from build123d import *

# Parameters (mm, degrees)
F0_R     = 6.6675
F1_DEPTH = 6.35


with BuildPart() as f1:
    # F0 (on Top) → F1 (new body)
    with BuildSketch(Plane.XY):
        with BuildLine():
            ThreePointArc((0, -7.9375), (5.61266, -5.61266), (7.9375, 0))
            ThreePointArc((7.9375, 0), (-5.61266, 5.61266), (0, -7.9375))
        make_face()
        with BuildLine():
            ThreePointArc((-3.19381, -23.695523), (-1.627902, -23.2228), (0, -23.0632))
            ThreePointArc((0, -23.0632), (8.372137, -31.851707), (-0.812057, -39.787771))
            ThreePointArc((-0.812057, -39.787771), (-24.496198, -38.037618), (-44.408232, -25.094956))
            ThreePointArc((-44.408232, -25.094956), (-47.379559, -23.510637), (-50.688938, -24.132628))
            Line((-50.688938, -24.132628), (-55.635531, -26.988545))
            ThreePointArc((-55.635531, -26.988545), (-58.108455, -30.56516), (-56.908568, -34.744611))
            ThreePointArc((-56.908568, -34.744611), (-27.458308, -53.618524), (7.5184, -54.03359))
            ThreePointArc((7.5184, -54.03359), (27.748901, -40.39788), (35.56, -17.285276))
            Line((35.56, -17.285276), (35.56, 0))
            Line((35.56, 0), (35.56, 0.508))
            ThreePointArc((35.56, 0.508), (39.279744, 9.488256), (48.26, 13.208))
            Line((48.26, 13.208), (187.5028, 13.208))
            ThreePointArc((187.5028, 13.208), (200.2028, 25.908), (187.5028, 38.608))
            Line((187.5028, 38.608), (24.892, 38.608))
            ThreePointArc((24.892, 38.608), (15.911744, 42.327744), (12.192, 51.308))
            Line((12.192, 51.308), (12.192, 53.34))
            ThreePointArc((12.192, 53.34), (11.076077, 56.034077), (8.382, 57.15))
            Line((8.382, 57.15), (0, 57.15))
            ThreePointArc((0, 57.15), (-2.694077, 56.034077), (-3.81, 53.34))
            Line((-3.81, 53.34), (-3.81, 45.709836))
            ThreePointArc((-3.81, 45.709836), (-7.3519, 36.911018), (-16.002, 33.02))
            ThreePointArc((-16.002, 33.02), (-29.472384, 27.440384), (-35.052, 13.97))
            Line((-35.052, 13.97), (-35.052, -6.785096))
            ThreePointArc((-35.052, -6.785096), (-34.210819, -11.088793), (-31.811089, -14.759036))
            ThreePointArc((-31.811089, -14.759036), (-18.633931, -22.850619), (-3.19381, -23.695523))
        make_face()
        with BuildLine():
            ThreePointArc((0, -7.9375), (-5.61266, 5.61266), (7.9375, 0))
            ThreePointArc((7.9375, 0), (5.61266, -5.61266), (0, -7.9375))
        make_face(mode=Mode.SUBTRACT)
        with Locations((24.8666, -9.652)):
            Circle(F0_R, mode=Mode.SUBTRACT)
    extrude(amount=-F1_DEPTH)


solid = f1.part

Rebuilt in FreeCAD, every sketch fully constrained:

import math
import FreeCAD as App
import Part
import Sketcher
Q = App.Units.Quantity

doc = App.newDocument("Part")
body = doc.addObject("PartDesign::Body", "Body")

sketch1 = doc.addObject("Sketcher::SketchObject", "Sketch")
body.addObject(sketch1)
sketch1.AttachmentSupport = (doc.XY_Plane, [""])
sketch1.MapMode = "FlatFace"
sketch1.addGeometry([
    Part.ArcOfCircle(Part.Circle(App.Vector(0, -31.4, 0), App.Vector(0, 0, 1), 8.4), math.radians(90), math.radians(112)),
    Part.ArcOfCircle(Part.Circle(App.Vector(0, -31.4, 0), App.Vector(0, 0, 1), 8.4), math.radians(-96), math.radians(90)),
    Part.ArcOfCircle(Part.Circle(App.Vector(-9.2, 7.2, 0), App.Vector(0, 0, 1), 47.8), math.radians(-137), math.radians(-80)),
    Part.ArcOfCircle(Part.Circle(App.Vector(-48.1, -28.5, 0), App.Vector(0, 0, 1), 5.1), math.radians(43), math.radians(120)),
    Part.LineSegment(App.Vector(-50.7, -24.1, 0), App.Vector(-55.6, -27, 0)),
    Part.ArcOfCircle(Part.Circle(App.Vector(-53.1, -31.4, 0), App.Vector(0, 0, 1), 5.1), math.radians(120), math.radians(221)),
    Part.ArcOfCircle(Part.Circle(App.Vector(-9.2, 7.2, 0), App.Vector(0, 0, 1), 63.5), math.radians(-139), math.radians(-75)),
    Part.ArcOfCircle(Part.Circle(App.Vector(-2.5, -17.3, 0), App.Vector(0, 0, 1), 38.1), math.radians(-75), math.radians(0)),
    Part.LineSegment(App.Vector(35.6, -17.3, 0), App.Vector(35.6, 0.5, 0)),
    Part.ArcOfCircle(Part.Circle(App.Vector(48.3, 0.5, 0), App.Vector(0, 0, 1), 12.7), math.radians(90), math.radians(180)),
    Part.LineSegment(App.Vector(48.3, 13.2, 0), App.Vector(187.5, 13.2, 0)),
    Part.ArcOfCircle(Part.Circle(App.Vector(187.5, 25.9, 0), App.Vector(0, 0, 1), 12.7), math.radians(-90), math.radians(90)),
    Part.LineSegment(App.Vector(187.5, 38.6, 0), App.Vector(24.9, 38.6, 0)),
    Part.ArcOfCircle(Part.Circle(App.Vector(24.9, 51.3, 0), App.Vector(0, 0, 1), 12.7), math.radians(-180), math.radians(-90)),
    Part.LineSegment(App.Vector(12.2, 51.3, 0), App.Vector(12.2, 53.3, 0)),
    Part.ArcOfCircle(Part.Circle(App.Vector(8.4, 53.3, 0), App.Vector(0, 0, 1), 3.8), math.radians(0), math.radians(90)),
    Part.LineSegment(App.Vector(8.4, 57.1, 0), App.Vector(0, 57.1, 0)),
    Part.ArcOfCircle(Part.Circle(App.Vector(0, 53.3, 0), App.Vector(0, 0, 1), 3.8), math.radians(90), math.radians(180)),
    Part.LineSegment(App.Vector(-3.8, 53.3, 0), App.Vector(-3.8, 45.7, 0)),
    Part.ArcOfCircle(Part.Circle(App.Vector(-16.5, 45.7, 0), App.Vector(0, 0, 1), 12.7), math.radians(-88), math.radians(0)),
    Part.ArcOfCircle(Part.Circle(App.Vector(-16, 14, 0), App.Vector(0, 0, 1), 19.1), math.radians(90), math.radians(180)),
    Part.LineSegment(App.Vector(-35.1, 14, 0), App.Vector(-35.1, -6.8, 0)),
    Part.ArcOfCircle(Part.Circle(App.Vector(-23.6, -6.8, 0), App.Vector(0, 0, 1), 11.4), math.radians(-180), math.radians(-136)),
    Part.ArcOfCircle(Part.Circle(App.Vector(-9.2, 7.2, 0), App.Vector(0, 0, 1), 31.5), math.radians(-136), math.radians(-79)),
    Part.Circle(App.Vector(24.9, -9.7, 0), App.Vector(0, 0, 1), 6.7),
    Part.ArcOfCircle(Part.Circle(App.Vector(0, 0, 0), App.Vector(0, 0, 1), 7.9), math.radians(-90), math.radians(0)),
    Part.ArcOfCircle(Part.Circle(App.Vector(0, 0, 0), App.Vector(0, 0, 1), 7.9), math.radians(0), math.radians(270)),
], False)
sketch1.addConstraint([
    Sketcher.Constraint("Tangent", 0, 1, 1, 2),
    Sketcher.Constraint("Coincident", 1, 1, 2, 2),
    Sketcher.Constraint("Tangent", 2, 1, 3, 1),
    Sketcher.Constraint("Tangent", 3, 2, 4, 1),
    Sketcher.Constraint("Tangent", 4, 2, 5, 1),
    Sketcher.Constraint("Tangent", 5, 2, 6, 1),
    Sketcher.Constraint("Tangent", 6, 2, 7, 1),
    Sketcher.Constraint("Tangent", 7, 2, 8, 1),
    Sketcher.Constraint("Tangent", 8, 2, 9, 2),
    Sketcher.Constraint("Tangent", 9, 1, 10, 1),
    Sketcher.Constraint("Tangent", 10, 2, 11, 1),
    Sketcher.Constraint("Tangent", 11, 2, 12, 1),
    Sketcher.Constraint("Tangent", 12, 2, 13, 2),
    Sketcher.Constraint("Tangent", 13, 1, 14, 1),
    Sketcher.Constraint("Tangent", 14, 2, 15, 1),
    Sketcher.Constraint("Tangent", 15, 2, 16, 1),
    Sketcher.Constraint("Tangent", 16, 2, 17, 1),
    Sketcher.Constraint("Tangent", 17, 2, 18, 1),
    Sketcher.Constraint("Tangent", 18, 2, 19, 2),
    Sketcher.Constraint("Coincident", 19, 1, 20, 1),
    Sketcher.Constraint("Tangent", 20, 2, 21, 1),
    Sketcher.Constraint("Tangent", 21, 2, 22, 1),
    Sketcher.Constraint("Tangent", 22, 2, 23, 1),
    Sketcher.Constraint("Coincident", 23, 2, 0, 2),
    Sketcher.Constraint("Tangent", 25, 1, 26, 2),
    Sketcher.Constraint("Coincident", 26, 1, 25, 2),
    Sketcher.Constraint("Vertical", 8),
    Sketcher.Constraint("Horizontal", 10),
    Sketcher.Constraint("Horizontal", 12),
    Sketcher.Constraint("Vertical", 14),
    Sketcher.Constraint("Horizontal", 16),
    Sketcher.Constraint("Vertical", 18),
    Sketcher.Constraint("Vertical", 21),
    Sketcher.Constraint("Coincident", 25, 3, -1, 1),
    Sketcher.Constraint("Coincident", 6, 3, 2, 3),
    Sketcher.Constraint("Coincident", 23, 3, 2, 3),
    Sketcher.Constraint("Equal", 3, 5),
    Sketcher.Constraint("Equal", 9, 11),
    Sketcher.Constraint("Equal", 11, 13),
    Sketcher.Constraint("Equal", 15, 17),
    Sketcher.Constraint("Equal", 13, 19),
    Sketcher.Constraint("PointOnObject", 1, 3, -2),
    Sketcher.Constraint("PointOnObject", 17, 3, -2),
    Sketcher.Constraint("PointOnObject", 0, 1, -2),
    Sketcher.Constraint("PointOnObject", 25, 1, -2),
    Sketcher.Constraint("PointOnObject", 26, 1, -1),
    Sketcher.Constraint("Vertical", 20, 3, 19, 1),
    Sketcher.Constraint("Radius", 3, Q("0.2 in")),
    Sketcher.Constraint("Radius", 6, Q("2.4999999 in")),
    Sketcher.Constraint("Radius", 7, Q("1.5 in")),
    Sketcher.Constraint("Radius", 9, Q("0.5 in")),
    Sketcher.Constraint("Radius", 1, Q("0.33 in")),
    Sketcher.Constraint("Radius", 2, Q("1.8800001 in")),
    Sketcher.Constraint("Radius", 15, Q("0.15 in")),
    Sketcher.Constraint("Radius", 20, Q("0.75 in")),
    Sketcher.Constraint("Radius", 22, Q("0.4500001 in")),
    Sketcher.Constraint("Radius", 23, Q("1.2400001 in")),
    Sketcher.Constraint("Diameter", 24, Q("0.525 in")),
    Sketcher.Constraint("Angle", 4, Q("-149.999998 deg")),
    Sketcher.Constraint("Radius", 25, Q("0.3125 in")),
    Sketcher.Constraint("DistanceX", 16, 2, 16, 1, Q("0.33 in")),
    Sketcher.Constraint("DistanceY", 14, 1, 14, 2, Q("0.08 in")),
    Sketcher.Constraint("DistanceX", 7, 3, -1, 1, Q("0.1 in")),
    Sketcher.Constraint("DistanceY", -1, 1, 15, 3, Q("2.1 in")),
    Sketcher.Constraint("DistanceY", -1, 1, 19, 1, Q("1.3 in")),
    Sketcher.Constraint("DistanceY", 24, 3, 9, 3, Q("0.4 in")),
    Sketcher.Constraint("DistanceX", 10, 1, 10, 2, Q("5.482 in")),
    Sketcher.Constraint("DistanceX", 20, 3, -1, 1, Q("0.63 in")),
    Sketcher.Constraint("DistanceY", 1, 3, -1, 1, Q("1.238 in")),
    Sketcher.Constraint("DistanceX", 2, 3, -1, 1, Q("0.3639999 in")),
    Sketcher.Constraint("DistanceY", -1, 1, 2, 3, Q("0.2840001 in")),
    Sketcher.Constraint("DistanceX", -1, 1, 24, 3, Q("0.979 in")),
    Sketcher.Constraint("Radius", 0, 8.381979),
    Sketcher.Constraint("DistanceY", 3, 3, 22, 2, 13.773002),
])
pad1 = doc.addObject("PartDesign::Pad", "Pad")
body.addObject(pad1)
pad1.Profile = sketch1
pad1.Length = Q("0.25 in")
pad1.Reversed = True

doc.recompute()
